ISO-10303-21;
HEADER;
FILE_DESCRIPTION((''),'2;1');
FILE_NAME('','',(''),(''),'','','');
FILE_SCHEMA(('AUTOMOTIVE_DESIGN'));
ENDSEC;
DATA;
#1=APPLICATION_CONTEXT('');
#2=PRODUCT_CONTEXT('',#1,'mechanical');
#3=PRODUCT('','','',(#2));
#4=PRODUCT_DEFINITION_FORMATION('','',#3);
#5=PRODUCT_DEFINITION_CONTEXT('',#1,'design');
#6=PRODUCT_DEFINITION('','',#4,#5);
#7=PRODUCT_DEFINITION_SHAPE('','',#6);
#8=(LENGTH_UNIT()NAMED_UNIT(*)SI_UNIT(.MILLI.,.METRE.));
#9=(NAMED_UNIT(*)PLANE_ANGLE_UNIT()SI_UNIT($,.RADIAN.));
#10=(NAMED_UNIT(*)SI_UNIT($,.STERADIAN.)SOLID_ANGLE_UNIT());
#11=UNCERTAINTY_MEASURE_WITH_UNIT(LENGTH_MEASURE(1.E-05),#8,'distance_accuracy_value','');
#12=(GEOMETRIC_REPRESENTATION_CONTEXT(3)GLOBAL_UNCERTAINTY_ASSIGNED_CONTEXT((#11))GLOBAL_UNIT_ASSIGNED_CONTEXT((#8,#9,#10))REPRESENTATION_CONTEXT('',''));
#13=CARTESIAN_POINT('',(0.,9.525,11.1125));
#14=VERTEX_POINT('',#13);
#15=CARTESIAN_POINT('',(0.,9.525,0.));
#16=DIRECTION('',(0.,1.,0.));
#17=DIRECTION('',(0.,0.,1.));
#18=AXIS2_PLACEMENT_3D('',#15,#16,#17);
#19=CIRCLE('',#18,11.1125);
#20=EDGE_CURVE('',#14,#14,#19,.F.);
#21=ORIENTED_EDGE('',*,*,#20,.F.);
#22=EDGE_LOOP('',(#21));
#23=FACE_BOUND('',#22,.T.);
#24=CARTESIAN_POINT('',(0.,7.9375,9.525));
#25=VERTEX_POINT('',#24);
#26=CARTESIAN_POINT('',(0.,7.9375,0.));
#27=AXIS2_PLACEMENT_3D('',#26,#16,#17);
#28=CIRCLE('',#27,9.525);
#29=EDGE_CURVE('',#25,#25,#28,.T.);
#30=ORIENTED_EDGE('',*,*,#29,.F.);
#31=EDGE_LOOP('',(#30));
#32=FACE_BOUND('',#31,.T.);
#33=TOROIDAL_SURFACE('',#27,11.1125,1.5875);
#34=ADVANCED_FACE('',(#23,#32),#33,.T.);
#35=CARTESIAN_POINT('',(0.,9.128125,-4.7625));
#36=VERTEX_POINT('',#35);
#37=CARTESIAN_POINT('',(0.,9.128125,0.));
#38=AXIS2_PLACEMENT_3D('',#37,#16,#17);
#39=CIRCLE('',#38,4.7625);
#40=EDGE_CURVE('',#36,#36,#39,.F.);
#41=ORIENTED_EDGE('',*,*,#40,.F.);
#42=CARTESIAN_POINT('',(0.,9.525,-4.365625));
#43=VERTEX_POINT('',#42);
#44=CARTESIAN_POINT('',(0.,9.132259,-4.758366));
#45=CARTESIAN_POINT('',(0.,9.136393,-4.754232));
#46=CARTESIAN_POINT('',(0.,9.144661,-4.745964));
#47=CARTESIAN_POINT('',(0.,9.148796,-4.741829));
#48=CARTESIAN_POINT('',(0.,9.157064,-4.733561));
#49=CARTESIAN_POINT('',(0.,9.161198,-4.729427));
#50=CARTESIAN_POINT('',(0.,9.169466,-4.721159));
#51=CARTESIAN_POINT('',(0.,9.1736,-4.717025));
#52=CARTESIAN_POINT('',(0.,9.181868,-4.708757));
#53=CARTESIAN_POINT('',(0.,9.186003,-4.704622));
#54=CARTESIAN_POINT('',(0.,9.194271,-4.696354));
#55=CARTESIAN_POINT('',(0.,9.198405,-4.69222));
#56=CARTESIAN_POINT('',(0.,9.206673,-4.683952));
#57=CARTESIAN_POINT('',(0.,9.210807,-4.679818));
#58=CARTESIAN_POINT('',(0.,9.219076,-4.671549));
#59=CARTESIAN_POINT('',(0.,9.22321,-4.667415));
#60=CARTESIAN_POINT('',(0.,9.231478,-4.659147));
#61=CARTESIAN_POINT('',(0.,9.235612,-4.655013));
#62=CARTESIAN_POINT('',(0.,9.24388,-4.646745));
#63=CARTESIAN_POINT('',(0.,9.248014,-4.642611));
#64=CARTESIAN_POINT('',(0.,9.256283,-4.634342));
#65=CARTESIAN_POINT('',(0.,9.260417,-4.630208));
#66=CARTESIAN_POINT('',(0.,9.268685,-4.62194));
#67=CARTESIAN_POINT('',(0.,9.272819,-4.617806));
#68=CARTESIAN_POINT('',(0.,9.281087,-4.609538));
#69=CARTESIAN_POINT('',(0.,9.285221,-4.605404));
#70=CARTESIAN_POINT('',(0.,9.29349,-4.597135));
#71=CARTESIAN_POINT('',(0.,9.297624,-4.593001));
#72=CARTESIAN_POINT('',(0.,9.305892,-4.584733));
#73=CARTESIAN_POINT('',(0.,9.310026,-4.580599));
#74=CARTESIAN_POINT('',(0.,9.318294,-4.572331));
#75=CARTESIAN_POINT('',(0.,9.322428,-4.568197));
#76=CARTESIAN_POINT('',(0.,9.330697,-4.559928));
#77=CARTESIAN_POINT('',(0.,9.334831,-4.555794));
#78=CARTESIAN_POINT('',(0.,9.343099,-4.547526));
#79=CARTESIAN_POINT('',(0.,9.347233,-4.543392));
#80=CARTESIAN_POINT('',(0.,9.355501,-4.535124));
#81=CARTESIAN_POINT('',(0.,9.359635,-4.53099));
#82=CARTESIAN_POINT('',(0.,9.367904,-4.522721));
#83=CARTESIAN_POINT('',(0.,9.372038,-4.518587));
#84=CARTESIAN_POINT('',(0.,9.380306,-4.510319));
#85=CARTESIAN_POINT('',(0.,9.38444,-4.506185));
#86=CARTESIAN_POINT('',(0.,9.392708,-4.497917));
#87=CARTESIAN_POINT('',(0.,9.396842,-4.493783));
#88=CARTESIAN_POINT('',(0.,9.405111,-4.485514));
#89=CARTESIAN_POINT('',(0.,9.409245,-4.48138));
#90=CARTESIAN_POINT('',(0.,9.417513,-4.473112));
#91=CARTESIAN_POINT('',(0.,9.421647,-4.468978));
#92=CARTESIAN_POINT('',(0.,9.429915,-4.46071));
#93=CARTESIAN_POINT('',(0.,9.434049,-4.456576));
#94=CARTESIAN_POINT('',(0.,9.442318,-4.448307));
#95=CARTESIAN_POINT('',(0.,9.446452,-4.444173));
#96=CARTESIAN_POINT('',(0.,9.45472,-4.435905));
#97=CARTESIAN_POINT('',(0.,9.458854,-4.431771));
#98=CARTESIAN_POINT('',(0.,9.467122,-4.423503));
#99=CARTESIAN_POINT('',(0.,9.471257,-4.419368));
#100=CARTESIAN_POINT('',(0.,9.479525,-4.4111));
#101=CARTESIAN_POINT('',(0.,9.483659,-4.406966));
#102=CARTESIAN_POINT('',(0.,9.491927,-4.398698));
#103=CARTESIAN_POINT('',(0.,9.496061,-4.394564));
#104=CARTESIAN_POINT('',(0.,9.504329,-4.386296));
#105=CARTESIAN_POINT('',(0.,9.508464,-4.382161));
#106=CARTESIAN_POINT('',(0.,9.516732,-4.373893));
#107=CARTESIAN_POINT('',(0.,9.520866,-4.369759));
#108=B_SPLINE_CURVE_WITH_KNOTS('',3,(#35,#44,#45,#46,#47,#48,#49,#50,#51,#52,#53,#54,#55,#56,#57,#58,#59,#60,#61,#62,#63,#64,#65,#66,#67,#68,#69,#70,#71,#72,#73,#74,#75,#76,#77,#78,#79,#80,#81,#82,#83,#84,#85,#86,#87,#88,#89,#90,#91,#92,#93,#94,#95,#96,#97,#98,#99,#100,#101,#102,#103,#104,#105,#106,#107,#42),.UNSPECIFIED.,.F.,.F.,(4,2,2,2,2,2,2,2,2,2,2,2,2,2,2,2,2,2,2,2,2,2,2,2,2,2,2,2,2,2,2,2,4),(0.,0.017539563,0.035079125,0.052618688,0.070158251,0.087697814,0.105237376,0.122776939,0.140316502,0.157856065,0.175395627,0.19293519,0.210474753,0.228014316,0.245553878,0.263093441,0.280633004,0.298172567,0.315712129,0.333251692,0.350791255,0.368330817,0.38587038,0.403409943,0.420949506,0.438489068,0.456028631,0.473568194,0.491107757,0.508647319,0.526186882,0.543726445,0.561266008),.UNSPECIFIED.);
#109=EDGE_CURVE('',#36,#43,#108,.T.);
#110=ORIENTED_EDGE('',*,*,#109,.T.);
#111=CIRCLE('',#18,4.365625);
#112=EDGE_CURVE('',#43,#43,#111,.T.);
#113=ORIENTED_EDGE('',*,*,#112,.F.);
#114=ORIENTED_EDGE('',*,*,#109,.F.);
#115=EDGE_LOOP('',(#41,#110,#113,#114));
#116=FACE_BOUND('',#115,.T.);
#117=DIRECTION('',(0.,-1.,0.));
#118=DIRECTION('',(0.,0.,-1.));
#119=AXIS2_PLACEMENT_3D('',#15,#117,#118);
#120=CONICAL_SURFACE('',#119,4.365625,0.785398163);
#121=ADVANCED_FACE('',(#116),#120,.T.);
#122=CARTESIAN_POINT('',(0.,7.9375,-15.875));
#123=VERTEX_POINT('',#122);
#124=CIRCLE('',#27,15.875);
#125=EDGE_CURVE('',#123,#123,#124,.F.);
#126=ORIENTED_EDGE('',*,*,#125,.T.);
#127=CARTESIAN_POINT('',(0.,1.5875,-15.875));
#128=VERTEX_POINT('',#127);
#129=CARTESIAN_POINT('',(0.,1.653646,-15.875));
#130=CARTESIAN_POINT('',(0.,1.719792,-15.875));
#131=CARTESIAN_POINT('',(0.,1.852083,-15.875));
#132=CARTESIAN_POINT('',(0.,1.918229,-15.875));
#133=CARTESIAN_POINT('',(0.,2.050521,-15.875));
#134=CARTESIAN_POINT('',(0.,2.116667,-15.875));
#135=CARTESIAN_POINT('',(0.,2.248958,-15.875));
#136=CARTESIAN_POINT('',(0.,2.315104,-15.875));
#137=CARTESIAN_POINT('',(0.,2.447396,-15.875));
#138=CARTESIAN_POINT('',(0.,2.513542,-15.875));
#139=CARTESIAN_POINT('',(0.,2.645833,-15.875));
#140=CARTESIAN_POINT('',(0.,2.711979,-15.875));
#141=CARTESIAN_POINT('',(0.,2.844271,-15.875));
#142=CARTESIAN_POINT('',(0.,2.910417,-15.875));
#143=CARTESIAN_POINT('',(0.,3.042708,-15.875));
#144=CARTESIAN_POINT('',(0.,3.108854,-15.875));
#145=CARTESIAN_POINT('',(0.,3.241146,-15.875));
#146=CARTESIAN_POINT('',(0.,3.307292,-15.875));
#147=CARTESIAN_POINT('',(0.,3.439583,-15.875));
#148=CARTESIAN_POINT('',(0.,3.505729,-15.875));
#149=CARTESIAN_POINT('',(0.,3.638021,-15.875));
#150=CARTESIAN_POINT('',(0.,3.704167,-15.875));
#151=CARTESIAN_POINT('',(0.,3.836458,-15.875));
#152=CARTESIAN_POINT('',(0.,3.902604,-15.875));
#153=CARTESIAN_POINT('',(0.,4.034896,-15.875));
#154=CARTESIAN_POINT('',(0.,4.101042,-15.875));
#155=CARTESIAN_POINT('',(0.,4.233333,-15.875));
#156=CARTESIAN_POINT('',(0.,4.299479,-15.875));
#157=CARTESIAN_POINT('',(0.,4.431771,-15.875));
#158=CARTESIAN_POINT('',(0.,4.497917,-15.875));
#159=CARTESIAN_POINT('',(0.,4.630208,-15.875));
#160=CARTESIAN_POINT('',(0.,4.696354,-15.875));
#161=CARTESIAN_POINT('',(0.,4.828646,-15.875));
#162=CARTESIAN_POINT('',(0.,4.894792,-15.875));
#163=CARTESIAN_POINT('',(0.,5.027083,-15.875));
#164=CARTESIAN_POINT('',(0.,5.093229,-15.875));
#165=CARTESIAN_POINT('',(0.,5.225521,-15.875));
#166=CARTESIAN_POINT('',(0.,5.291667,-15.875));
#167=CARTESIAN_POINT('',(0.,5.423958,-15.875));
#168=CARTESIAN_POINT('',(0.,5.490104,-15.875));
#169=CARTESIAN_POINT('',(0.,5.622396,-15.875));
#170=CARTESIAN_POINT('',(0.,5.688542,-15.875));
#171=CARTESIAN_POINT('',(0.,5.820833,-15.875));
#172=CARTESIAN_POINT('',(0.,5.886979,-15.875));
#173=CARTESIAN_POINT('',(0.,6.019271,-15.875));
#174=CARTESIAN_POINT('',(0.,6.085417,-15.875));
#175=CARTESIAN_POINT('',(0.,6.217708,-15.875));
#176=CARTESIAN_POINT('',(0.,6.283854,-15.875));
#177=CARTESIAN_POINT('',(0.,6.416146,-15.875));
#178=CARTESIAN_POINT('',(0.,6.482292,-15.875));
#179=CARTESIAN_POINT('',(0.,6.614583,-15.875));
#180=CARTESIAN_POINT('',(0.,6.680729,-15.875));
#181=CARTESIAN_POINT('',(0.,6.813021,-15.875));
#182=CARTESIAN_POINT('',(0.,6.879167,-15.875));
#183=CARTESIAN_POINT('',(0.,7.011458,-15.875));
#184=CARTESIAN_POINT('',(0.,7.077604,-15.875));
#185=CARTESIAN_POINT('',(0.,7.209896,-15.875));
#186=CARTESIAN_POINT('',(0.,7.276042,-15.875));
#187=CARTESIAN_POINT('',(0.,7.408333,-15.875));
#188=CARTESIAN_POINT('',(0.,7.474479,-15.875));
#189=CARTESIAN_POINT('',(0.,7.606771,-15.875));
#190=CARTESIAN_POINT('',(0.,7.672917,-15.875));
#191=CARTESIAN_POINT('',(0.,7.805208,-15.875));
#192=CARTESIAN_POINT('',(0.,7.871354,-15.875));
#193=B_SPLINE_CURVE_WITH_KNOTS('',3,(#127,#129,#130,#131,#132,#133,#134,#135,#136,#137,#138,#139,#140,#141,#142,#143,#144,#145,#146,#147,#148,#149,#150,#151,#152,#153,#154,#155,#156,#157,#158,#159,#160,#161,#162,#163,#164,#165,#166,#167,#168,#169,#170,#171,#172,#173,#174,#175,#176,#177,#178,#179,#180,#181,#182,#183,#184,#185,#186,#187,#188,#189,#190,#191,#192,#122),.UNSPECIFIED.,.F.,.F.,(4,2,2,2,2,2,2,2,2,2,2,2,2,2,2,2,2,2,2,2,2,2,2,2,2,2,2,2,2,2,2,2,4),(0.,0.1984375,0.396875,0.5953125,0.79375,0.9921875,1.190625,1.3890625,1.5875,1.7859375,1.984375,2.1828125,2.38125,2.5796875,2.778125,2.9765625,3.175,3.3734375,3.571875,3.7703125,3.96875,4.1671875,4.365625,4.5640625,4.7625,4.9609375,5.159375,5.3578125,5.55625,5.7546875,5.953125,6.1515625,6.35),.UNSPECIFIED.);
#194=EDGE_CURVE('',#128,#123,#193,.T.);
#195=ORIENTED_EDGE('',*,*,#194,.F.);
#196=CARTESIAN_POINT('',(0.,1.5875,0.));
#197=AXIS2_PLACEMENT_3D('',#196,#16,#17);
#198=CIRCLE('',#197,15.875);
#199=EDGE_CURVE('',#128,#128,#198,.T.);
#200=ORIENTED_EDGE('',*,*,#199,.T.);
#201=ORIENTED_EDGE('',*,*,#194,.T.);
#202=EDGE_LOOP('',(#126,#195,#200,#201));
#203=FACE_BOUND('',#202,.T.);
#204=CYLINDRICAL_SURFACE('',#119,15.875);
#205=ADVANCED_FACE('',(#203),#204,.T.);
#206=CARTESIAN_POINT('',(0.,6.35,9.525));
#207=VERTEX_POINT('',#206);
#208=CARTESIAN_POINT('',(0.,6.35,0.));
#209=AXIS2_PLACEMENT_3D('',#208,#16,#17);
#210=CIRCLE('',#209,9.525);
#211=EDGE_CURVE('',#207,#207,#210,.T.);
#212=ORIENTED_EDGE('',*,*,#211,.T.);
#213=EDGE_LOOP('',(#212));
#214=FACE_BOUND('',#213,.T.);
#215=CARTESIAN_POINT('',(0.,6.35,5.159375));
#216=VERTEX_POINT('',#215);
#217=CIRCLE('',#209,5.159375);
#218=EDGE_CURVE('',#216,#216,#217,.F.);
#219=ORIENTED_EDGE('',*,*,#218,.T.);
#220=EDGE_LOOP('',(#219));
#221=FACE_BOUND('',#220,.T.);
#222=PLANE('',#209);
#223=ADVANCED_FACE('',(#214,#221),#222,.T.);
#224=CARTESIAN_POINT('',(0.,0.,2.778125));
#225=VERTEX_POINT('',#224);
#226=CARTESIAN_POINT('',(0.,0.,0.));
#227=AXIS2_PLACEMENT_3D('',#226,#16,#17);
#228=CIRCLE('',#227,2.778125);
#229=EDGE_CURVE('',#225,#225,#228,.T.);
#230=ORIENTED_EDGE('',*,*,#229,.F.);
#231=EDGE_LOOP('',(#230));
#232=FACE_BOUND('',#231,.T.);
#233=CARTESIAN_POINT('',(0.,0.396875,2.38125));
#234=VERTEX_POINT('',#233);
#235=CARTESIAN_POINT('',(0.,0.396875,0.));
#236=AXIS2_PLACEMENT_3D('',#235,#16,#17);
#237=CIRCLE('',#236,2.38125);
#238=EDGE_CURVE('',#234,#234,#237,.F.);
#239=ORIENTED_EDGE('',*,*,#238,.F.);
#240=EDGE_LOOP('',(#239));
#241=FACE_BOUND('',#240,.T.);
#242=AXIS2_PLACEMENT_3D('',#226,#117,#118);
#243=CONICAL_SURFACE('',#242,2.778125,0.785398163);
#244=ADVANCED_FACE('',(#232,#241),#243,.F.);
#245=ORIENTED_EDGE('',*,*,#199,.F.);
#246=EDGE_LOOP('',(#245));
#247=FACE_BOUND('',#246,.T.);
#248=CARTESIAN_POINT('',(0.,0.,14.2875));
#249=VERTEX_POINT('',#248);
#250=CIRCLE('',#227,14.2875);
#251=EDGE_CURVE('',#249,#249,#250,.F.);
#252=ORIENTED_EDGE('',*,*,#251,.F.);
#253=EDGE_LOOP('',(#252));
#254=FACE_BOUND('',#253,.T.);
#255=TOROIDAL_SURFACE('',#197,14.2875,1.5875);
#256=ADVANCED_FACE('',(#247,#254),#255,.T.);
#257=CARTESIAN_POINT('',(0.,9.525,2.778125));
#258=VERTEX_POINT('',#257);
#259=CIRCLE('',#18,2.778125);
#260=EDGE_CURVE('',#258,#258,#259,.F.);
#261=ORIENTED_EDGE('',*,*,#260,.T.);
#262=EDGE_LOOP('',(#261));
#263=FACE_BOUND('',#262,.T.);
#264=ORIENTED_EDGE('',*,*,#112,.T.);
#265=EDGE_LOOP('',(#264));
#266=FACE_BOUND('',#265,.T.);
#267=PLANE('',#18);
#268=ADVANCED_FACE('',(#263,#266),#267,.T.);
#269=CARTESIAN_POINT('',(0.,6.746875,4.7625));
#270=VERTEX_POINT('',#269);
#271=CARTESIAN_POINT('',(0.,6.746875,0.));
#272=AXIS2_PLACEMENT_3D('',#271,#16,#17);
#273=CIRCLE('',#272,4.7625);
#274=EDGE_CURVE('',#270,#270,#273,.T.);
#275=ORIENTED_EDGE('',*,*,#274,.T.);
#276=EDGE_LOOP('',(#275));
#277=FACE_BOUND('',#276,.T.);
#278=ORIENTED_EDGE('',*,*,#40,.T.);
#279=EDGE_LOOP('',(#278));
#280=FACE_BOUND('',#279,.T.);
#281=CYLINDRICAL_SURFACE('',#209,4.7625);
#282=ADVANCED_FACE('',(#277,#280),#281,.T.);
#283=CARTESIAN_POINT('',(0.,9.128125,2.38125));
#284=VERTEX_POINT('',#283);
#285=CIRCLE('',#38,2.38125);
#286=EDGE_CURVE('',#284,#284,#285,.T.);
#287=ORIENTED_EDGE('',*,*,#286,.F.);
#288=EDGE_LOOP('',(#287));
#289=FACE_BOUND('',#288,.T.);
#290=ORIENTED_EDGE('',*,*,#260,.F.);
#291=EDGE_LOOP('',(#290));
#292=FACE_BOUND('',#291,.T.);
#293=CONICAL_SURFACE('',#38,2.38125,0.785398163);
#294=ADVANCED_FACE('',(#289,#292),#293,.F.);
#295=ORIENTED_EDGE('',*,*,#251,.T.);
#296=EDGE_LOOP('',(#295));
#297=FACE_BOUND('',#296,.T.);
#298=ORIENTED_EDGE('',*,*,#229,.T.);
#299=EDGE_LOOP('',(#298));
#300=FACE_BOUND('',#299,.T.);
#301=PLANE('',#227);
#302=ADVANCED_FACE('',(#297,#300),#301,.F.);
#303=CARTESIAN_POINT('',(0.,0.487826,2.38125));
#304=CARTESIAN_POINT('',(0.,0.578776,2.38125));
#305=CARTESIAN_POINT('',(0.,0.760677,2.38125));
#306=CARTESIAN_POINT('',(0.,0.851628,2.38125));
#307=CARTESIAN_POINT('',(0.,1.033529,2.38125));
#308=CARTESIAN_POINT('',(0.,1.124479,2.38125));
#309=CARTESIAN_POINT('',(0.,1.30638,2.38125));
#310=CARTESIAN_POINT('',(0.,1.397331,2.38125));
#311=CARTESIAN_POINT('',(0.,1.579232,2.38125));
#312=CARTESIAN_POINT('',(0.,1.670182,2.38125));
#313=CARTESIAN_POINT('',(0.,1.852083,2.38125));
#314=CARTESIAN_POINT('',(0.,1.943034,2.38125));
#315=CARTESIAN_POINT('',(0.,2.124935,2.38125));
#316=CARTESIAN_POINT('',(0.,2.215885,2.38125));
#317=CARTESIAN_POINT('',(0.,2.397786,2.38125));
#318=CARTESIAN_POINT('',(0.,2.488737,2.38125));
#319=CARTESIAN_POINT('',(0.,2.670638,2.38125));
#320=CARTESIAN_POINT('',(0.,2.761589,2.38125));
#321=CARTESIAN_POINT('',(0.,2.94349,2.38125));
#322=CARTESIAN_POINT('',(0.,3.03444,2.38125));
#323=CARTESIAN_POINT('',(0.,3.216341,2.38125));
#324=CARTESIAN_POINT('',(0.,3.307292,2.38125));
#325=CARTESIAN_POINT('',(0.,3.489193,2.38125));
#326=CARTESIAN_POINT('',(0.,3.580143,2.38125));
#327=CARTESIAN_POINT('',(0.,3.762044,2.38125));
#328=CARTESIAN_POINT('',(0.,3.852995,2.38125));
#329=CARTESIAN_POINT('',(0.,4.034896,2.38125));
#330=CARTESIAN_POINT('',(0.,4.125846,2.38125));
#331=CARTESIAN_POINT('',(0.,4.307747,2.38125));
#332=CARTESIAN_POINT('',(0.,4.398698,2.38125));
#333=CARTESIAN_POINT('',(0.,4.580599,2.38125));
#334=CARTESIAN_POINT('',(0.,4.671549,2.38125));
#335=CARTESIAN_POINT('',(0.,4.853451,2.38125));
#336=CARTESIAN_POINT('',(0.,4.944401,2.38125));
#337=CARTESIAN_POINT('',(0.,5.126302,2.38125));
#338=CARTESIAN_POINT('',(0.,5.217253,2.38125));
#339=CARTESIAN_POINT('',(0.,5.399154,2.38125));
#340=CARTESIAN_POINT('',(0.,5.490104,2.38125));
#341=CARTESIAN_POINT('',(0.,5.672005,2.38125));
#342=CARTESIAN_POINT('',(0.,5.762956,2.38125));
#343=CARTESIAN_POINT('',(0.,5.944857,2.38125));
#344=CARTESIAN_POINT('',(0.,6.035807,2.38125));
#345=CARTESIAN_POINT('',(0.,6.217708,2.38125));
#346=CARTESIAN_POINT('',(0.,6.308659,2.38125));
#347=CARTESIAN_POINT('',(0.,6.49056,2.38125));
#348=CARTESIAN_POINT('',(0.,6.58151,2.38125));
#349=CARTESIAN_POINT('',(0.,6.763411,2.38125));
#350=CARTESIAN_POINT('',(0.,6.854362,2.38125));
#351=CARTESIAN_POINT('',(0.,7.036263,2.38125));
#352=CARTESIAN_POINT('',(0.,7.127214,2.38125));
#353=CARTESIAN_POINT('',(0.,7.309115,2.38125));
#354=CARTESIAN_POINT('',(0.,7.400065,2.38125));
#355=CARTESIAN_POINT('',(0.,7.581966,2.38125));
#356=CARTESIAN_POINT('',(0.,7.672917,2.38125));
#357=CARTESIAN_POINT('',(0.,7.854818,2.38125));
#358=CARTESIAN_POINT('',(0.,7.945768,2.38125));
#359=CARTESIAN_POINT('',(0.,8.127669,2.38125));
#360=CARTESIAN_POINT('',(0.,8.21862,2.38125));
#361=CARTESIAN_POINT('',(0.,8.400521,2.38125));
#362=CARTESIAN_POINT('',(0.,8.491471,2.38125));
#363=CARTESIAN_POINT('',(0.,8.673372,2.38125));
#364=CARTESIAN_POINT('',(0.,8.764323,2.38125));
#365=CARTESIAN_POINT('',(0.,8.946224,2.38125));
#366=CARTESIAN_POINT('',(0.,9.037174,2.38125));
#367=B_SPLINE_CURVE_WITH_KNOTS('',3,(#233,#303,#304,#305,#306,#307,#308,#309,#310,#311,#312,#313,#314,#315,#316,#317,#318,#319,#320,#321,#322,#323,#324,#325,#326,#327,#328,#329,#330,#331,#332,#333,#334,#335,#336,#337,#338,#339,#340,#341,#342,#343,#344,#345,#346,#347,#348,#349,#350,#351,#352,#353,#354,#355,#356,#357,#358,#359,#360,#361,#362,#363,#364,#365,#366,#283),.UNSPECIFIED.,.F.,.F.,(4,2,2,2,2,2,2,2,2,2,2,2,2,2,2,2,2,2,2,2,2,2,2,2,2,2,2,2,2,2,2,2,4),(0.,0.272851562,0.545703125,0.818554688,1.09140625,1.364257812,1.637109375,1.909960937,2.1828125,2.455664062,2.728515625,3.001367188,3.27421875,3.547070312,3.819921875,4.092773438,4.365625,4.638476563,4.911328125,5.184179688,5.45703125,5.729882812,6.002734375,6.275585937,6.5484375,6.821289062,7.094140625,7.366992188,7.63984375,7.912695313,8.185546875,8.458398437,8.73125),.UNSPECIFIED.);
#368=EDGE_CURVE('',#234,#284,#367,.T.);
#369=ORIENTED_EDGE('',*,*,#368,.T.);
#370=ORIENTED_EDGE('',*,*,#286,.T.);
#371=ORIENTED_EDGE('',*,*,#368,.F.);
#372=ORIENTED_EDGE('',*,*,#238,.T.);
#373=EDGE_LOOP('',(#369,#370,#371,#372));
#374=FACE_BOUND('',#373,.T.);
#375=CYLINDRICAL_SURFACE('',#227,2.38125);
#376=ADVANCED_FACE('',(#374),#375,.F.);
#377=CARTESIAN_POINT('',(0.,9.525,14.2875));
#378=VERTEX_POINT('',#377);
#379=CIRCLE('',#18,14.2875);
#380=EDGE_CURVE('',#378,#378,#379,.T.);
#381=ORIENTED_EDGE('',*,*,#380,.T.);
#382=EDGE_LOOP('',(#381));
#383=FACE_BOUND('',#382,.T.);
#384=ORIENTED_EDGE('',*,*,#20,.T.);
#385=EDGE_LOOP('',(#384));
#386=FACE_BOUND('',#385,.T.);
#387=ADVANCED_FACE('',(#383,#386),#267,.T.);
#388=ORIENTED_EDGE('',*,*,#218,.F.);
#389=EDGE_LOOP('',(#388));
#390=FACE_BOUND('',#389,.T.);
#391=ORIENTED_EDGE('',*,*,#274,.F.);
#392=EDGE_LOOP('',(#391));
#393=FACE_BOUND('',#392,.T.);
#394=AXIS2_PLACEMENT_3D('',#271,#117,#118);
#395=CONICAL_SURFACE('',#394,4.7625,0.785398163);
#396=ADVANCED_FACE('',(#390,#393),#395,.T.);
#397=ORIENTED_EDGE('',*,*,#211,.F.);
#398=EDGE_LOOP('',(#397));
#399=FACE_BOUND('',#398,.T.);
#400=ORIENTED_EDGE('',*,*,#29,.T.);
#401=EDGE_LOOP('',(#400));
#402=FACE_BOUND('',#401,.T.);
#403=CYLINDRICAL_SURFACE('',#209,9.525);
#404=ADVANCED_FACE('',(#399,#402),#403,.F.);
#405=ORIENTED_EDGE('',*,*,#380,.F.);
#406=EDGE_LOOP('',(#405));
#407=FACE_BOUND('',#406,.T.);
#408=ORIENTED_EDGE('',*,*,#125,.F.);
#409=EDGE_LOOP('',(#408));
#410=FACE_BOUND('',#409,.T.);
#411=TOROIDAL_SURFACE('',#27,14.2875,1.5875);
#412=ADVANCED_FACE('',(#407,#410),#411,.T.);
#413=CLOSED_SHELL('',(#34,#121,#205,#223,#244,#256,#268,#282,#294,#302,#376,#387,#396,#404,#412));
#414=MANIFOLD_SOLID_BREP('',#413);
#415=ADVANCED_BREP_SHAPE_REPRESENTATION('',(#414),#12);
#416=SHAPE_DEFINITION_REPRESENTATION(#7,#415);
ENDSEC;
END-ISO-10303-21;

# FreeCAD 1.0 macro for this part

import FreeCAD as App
import Part
import Sketcher
Q = App.Units.Quantity


def edges_at(feature, points):
    """Names of the edges that pass closest to the given points."""
    edges = feature.Shape.Edges
    near = lambda p: min(range(len(edges)), key=lambda i: edges[i].distToShape(Part.Vertex(*p))[0])
    return sorted({f"Edge{near(p) + 1}" for p in points})

doc = App.newDocument("Part")
body = doc.addObject("PartDesign::Body", "Body")

sketch1 = doc.addObject("Sketcher::SketchObject", "Sketch")
body.addObject(sketch1)
sketch1.AttachmentSupport = (doc.XZ_Plane, [""])
sketch1.MapMode = "FlatFace"
sketch1.addGeometry(Part.Circle(App.Vector(0, 0, 0), App.Vector(0, 0, 1), 15.875), False)
sketch1.addConstraint([
    Sketcher.Constraint("Coincident", 0, 3, -1, 1),
    Sketcher.Constraint("Diameter", 0, Q("1.25 in")),
])
pad1 = doc.addObject("PartDesign::Pad", "Pad")
body.addObject(pad1)
pad1.Profile = sketch1
pad1.Length = Q("0.375 in")
pad1.Reversed = True

sketch2 = doc.addObject("Sketcher::SketchObject", "Sketch001")
body.addObject(sketch2)
sketch2.AttachmentSupport = (doc.XZ_Plane, [""])
sketch2.MapMode = "FlatFace"
sketch2.AttachmentOffset = App.Placement(App.Vector(0, 0, -0.375 * 25.4), App.Rotation())
sketch2.addGeometry([
    Part.Circle(App.Vector(0, 0, 0), App.Vector(0, 0, 1), 9.525),
    Part.Circle(App.Vector(0, 0, 0), App.Vector(0, 0, 1), 4.7625),
], False)
sketch2.addConstraint([
    Sketcher.Constraint("Coincident", 0, 3, -1, 1),
    Sketcher.Constraint("Coincident", 1, 3, -1, 1),
    Sketcher.Constraint("Diameter", 0, Q("0.75 in")),
    Sketcher.Constraint("Diameter", 1, Q("0.375 in")),
])
pocket1 = doc.addObject("PartDesign::Pocket", "Pocket")
body.addObject(pocket1)
pocket1.Profile = sketch2
pocket1.Length = Q("0.125 in")
pocket1.Reversed = True

sketch3 = doc.addObject("Sketcher::SketchObject", "Sketch002")
body.addObject(sketch3)
sketch3.AttachmentSupport = (doc.XZ_Plane, [""])
sketch3.MapMode = "FlatFace"
sketch3.AttachmentOffset = App.Placement(App.Vector(0, 0, -0.375 * 25.4), App.Rotation())
sketch3.addGeometry(Part.Circle(App.Vector(0, 0, 0), App.Vector(0, 0, 1), 2.38125), False)
sketch3.addConstraint([
    Sketcher.Constraint("Coincident", 0, 3, -1, 1),
    Sketcher.Constraint("Diameter", 0, Q("0.1875 in")),
])
pocket2 = doc.addObject("PartDesign::Pocket", "Pocket001")
body.addObject(pocket2)
pocket2.Profile = sketch3
pocket2.Type = "ThroughAll"
pocket2.Midplane = True
doc.recompute()

fillet = doc.addObject("PartDesign::Fillet", "Fillet")
body.addObject(fillet)
fillet.Base = (pocket2, edges_at(pocket2, [(0, 0, 15.875), (0, 9.525, 15.875), (0, 9.525, -9.525)]))
fillet.Radius = Q("0.0625 in")
doc.recompute()

chamfer = doc.addObject("PartDesign::Chamfer", "Chamfer")
body.addObject(chamfer)
chamfer.Base = (fillet, edges_at(fillet, [
    (0, 9.525, -2.381),
    (0, 0, -2.381),
    (0, 6.35, -4.763),
    (0, 9.525, -4.763),
]))
chamfer.Size = Q("0.015625 in")

doc.recompute()
